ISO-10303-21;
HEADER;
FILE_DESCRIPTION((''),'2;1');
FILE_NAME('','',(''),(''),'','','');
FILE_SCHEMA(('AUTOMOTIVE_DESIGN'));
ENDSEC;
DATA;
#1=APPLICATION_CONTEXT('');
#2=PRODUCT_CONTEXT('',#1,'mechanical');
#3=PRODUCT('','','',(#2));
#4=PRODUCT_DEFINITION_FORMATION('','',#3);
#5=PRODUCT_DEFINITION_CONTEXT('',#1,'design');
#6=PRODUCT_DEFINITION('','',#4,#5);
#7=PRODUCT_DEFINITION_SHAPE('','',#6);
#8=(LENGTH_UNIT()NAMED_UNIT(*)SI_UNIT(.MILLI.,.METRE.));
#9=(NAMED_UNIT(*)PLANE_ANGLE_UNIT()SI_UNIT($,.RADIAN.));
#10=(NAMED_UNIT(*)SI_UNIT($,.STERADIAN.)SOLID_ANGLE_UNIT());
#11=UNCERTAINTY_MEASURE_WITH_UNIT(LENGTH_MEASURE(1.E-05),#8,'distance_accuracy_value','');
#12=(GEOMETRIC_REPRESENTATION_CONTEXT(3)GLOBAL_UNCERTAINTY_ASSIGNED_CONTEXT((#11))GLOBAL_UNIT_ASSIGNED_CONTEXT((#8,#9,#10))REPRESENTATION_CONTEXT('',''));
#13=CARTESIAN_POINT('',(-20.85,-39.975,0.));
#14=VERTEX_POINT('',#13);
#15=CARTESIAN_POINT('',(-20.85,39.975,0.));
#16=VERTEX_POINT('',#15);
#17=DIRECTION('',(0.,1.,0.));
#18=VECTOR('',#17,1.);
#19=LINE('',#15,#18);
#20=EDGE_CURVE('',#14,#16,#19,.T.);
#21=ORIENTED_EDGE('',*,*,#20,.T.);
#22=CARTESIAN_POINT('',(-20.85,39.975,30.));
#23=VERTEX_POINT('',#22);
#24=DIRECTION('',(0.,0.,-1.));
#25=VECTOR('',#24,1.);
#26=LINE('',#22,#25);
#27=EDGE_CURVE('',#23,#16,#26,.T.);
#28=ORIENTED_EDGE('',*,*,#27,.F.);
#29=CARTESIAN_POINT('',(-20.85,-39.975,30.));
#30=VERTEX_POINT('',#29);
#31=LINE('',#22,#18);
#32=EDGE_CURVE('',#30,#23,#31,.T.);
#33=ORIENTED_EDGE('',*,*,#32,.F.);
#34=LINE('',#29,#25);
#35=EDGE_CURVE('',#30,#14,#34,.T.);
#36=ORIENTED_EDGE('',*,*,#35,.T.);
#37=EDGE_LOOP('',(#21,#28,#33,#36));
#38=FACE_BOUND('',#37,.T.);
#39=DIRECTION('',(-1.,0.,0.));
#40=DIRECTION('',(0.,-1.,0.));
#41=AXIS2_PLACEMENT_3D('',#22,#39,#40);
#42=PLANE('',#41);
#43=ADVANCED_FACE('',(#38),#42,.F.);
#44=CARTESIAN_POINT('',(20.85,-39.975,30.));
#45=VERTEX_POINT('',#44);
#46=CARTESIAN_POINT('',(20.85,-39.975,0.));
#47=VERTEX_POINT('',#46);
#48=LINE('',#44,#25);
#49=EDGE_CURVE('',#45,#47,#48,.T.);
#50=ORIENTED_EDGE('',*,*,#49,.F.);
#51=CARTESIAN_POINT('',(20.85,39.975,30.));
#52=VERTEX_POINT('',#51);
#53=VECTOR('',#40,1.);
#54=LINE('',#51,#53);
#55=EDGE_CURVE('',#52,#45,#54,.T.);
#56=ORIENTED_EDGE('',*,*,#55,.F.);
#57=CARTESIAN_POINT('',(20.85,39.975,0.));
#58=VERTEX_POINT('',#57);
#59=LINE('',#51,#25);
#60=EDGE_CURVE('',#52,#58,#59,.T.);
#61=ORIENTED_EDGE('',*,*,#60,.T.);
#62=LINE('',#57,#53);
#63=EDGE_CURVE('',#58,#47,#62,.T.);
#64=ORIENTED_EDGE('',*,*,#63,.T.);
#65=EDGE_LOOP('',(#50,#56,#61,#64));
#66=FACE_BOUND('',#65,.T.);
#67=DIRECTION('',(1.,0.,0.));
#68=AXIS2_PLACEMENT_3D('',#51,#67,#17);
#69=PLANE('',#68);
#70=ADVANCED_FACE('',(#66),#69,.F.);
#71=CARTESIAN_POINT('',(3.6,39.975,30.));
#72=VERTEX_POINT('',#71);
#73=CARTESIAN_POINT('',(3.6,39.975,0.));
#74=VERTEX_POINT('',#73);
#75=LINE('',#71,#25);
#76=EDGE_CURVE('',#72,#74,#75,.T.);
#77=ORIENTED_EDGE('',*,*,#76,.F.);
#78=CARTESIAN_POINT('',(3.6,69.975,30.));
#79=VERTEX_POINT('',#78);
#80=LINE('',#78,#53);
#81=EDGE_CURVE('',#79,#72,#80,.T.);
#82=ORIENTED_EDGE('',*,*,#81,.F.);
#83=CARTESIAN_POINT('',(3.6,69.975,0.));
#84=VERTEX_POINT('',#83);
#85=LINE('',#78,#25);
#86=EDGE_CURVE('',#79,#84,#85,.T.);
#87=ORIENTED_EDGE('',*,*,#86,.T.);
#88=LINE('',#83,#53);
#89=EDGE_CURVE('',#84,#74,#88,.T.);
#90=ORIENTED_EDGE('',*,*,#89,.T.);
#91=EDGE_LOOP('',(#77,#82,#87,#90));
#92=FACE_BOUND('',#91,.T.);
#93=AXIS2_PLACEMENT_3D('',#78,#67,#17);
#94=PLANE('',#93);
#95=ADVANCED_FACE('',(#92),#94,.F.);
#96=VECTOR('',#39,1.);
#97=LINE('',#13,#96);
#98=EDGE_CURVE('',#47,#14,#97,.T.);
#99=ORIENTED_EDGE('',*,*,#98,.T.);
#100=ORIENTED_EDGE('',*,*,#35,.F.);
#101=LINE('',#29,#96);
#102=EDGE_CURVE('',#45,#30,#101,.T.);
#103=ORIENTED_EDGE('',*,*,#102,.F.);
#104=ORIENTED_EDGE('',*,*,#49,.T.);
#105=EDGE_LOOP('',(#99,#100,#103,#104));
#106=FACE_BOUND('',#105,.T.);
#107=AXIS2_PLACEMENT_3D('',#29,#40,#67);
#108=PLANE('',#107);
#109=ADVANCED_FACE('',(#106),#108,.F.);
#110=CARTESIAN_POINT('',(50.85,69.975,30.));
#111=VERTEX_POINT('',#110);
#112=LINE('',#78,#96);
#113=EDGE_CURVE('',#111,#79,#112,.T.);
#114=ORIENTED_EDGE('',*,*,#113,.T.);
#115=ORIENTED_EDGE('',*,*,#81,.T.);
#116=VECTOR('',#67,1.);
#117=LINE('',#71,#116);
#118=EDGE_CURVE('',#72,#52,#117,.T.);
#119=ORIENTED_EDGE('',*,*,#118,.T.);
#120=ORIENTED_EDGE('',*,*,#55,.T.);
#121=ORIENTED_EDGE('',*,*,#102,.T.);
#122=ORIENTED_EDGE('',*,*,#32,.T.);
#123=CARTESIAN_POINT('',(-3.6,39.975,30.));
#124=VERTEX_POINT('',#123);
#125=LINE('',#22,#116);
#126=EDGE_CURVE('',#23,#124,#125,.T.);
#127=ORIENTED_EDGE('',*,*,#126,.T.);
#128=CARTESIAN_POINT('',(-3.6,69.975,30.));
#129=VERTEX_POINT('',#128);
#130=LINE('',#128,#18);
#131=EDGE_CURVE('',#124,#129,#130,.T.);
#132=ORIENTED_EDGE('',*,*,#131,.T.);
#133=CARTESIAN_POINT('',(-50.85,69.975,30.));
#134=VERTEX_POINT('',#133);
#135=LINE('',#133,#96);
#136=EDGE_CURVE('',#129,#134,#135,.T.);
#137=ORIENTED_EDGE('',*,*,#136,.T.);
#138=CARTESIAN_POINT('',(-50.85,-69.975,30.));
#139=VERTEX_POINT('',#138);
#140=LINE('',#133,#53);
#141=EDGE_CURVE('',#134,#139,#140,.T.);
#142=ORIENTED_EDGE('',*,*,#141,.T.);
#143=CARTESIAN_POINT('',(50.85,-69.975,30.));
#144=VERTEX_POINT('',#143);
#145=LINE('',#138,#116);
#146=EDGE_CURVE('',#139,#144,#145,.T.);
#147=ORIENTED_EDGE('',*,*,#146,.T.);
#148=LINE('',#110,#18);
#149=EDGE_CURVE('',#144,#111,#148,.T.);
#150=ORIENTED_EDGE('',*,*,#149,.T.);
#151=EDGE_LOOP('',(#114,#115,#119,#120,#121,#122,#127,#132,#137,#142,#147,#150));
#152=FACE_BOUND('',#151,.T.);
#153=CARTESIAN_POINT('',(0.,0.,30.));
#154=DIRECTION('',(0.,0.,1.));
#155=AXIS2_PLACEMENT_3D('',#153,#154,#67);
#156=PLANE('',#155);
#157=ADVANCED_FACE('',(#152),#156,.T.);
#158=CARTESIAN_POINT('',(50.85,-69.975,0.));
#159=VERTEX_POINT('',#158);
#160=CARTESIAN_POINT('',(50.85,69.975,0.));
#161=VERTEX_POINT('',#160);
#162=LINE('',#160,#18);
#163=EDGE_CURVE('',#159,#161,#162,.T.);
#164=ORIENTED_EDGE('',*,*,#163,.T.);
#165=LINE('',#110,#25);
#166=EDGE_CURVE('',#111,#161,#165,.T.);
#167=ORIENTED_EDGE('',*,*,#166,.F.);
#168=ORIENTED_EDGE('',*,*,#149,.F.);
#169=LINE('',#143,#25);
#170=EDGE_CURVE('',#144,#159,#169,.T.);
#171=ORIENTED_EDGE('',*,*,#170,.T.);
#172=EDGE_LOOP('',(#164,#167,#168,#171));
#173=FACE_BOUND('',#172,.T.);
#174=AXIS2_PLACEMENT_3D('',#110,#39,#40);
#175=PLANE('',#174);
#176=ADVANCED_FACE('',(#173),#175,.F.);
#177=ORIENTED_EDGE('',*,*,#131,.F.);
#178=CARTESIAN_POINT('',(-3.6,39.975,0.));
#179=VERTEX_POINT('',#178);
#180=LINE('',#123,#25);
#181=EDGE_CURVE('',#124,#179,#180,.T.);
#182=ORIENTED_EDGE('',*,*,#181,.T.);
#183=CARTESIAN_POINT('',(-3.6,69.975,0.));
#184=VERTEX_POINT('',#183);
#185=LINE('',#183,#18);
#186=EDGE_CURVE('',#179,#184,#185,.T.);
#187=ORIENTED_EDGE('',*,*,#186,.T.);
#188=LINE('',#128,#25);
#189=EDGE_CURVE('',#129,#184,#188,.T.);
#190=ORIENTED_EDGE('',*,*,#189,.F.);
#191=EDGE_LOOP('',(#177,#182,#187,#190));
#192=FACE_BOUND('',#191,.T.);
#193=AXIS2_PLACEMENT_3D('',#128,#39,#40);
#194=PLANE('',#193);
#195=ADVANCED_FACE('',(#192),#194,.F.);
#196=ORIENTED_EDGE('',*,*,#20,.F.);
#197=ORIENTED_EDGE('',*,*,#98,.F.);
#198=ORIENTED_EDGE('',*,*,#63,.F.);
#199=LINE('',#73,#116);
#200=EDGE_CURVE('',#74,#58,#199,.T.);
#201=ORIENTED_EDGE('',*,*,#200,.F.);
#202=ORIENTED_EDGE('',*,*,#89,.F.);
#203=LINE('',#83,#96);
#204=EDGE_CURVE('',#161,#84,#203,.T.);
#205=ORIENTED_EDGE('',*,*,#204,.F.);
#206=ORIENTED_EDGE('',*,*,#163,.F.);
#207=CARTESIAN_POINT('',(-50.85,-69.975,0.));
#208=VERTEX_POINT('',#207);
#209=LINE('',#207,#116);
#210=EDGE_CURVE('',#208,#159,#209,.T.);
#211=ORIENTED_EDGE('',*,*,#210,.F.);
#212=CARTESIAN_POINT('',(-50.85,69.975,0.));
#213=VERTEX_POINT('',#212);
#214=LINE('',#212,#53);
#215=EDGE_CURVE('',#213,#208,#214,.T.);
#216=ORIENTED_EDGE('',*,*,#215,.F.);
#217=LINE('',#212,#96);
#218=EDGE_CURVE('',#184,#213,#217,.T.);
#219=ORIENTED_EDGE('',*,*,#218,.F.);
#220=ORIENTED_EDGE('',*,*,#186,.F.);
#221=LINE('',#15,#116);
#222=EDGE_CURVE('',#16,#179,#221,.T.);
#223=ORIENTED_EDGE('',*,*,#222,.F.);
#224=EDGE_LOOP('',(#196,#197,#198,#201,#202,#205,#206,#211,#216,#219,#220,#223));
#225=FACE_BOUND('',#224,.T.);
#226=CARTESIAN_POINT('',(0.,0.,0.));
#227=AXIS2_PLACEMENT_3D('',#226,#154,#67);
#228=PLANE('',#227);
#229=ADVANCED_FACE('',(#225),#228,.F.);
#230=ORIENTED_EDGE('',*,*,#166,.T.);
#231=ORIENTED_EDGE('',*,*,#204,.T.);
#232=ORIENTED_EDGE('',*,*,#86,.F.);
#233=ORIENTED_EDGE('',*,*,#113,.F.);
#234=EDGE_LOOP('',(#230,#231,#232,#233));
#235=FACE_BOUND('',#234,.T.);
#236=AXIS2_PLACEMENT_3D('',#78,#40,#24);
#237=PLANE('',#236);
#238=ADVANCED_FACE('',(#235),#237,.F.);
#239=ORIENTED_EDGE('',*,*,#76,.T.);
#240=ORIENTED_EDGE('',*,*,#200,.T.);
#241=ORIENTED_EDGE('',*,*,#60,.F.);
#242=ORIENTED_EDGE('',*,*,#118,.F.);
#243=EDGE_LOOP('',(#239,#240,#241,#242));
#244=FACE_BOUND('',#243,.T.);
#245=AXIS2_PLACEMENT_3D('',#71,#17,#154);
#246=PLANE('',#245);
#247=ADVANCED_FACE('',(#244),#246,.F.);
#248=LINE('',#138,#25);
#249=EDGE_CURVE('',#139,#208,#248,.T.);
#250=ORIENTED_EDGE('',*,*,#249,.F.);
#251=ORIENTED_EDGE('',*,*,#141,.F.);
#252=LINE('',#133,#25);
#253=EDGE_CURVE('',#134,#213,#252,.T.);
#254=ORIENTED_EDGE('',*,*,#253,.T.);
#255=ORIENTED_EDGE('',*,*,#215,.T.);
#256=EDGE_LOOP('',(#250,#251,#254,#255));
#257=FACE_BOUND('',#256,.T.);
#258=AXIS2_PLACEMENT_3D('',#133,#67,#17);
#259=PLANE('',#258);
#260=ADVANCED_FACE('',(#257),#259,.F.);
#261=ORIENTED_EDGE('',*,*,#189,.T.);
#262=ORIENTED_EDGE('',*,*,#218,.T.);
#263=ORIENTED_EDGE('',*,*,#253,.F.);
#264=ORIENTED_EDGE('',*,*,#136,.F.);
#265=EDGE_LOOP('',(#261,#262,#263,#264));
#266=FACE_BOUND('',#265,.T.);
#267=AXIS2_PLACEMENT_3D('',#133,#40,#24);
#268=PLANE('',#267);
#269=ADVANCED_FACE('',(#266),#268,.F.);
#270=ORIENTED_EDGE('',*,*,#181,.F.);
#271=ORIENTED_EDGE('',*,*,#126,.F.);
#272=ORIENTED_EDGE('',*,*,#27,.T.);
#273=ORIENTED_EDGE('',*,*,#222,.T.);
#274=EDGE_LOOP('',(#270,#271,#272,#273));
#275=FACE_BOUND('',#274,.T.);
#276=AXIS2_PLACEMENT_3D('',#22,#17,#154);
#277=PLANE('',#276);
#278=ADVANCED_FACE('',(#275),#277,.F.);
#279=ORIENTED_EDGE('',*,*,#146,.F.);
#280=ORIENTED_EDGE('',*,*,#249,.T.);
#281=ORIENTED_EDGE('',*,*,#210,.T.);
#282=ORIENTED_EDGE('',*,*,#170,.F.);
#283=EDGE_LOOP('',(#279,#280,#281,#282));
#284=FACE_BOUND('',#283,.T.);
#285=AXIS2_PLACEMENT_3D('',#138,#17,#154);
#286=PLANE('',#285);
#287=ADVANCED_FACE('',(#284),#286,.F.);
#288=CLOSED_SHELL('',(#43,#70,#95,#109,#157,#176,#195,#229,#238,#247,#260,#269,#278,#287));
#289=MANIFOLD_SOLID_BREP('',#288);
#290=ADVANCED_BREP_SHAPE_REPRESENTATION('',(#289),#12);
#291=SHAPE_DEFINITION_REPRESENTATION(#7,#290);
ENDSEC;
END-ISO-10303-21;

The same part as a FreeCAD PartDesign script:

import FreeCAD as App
import Part
import Sketcher
Q = App.Units.Quantity


def add_polygon(sketch, points):
    """Adds a closed chain of lines whose ends are joined by coincident constraints."""
    first, n = sketch.GeometryCount, len(points)
    for a, b in zip(points, points[1:] + points[:1]):
        sketch.addGeometry(Part.LineSegment(App.Vector(*a, 0), App.Vector(*b, 0)), False)
    for i in range(n):
        sketch.addConstraint(Sketcher.Constraint("Coincident", first + i, 2, first + (i + 1) % n, 1))

doc = App.newDocument("Part")
body = doc.addObject("PartDesign::Body", "Body")

sketch1 = doc.addObject("Sketcher::SketchObject", "Sketch")
body.addObject(sketch1)
sketch1.AttachmentSupport = (doc.XY_Plane, [""])
sketch1.MapMode = "FlatFace"
add_polygon(sketch1, [(-21, -40), (-21, 40), (-4, 40), (-4, 70), (-51, 70), (-51, -70), (51, -70), (51, 70), (4, 70), (4, 40), (21, 40), (21, -40)])
sketch1.addConstraint([
    Sketcher.Constraint("Vertical", 0),
    Sketcher.Constraint("Horizontal", 1),
    Sketcher.Constraint("Vertical", 2),
    Sketcher.Constraint("Horizontal", 3),
    Sketcher.Constraint("Vertical", 4),
    Sketcher.Constraint("Horizontal", 5),
    Sketcher.Constraint("Vertical", 6),
    Sketcher.Constraint("Horizontal", 7),
    Sketcher.Constraint("Vertical", 8),
    Sketcher.Constraint("Horizontal", 9),
    Sketcher.Constraint("Vertical", 10),
    Sketcher.Constraint("Horizontal", 11),
    Sketcher.Constraint("Symmetric", 3, 2, 5, 2, -1, 1),
    Sketcher.Constraint("Symmetric", 0, 2, 10, 2, -1, 1),
    Sketcher.Constraint("Symmetric", 2, 2, 7, 2, -2),
    Sketcher.Constraint("Horizontal", 1, 2, 8, 2),
    Sketcher.Constraint("DistanceY", 2, 1, 2, 2, Q("30 mm")),
    Sketcher.Constraint("DistanceX", 5, 1, 5, 2, Q("101.7 mm")),
    Sketcher.Constraint("DistanceX", 11, 2, 11, 1, Q("41.7 mm")),
    Sketcher.Constraint("DistanceX", 1, 1, 1, 2, Q("17.25 mm")),
    Sketcher.Constraint("DistanceY", 0, 1, 0, 2, Q("79.95 mm")),
])
pad1 = doc.addObject("PartDesign::Pad", "Pad")
body.addObject(pad1)
pad1.Profile = sketch1
pad1.Length = 30

doc.recompute()
